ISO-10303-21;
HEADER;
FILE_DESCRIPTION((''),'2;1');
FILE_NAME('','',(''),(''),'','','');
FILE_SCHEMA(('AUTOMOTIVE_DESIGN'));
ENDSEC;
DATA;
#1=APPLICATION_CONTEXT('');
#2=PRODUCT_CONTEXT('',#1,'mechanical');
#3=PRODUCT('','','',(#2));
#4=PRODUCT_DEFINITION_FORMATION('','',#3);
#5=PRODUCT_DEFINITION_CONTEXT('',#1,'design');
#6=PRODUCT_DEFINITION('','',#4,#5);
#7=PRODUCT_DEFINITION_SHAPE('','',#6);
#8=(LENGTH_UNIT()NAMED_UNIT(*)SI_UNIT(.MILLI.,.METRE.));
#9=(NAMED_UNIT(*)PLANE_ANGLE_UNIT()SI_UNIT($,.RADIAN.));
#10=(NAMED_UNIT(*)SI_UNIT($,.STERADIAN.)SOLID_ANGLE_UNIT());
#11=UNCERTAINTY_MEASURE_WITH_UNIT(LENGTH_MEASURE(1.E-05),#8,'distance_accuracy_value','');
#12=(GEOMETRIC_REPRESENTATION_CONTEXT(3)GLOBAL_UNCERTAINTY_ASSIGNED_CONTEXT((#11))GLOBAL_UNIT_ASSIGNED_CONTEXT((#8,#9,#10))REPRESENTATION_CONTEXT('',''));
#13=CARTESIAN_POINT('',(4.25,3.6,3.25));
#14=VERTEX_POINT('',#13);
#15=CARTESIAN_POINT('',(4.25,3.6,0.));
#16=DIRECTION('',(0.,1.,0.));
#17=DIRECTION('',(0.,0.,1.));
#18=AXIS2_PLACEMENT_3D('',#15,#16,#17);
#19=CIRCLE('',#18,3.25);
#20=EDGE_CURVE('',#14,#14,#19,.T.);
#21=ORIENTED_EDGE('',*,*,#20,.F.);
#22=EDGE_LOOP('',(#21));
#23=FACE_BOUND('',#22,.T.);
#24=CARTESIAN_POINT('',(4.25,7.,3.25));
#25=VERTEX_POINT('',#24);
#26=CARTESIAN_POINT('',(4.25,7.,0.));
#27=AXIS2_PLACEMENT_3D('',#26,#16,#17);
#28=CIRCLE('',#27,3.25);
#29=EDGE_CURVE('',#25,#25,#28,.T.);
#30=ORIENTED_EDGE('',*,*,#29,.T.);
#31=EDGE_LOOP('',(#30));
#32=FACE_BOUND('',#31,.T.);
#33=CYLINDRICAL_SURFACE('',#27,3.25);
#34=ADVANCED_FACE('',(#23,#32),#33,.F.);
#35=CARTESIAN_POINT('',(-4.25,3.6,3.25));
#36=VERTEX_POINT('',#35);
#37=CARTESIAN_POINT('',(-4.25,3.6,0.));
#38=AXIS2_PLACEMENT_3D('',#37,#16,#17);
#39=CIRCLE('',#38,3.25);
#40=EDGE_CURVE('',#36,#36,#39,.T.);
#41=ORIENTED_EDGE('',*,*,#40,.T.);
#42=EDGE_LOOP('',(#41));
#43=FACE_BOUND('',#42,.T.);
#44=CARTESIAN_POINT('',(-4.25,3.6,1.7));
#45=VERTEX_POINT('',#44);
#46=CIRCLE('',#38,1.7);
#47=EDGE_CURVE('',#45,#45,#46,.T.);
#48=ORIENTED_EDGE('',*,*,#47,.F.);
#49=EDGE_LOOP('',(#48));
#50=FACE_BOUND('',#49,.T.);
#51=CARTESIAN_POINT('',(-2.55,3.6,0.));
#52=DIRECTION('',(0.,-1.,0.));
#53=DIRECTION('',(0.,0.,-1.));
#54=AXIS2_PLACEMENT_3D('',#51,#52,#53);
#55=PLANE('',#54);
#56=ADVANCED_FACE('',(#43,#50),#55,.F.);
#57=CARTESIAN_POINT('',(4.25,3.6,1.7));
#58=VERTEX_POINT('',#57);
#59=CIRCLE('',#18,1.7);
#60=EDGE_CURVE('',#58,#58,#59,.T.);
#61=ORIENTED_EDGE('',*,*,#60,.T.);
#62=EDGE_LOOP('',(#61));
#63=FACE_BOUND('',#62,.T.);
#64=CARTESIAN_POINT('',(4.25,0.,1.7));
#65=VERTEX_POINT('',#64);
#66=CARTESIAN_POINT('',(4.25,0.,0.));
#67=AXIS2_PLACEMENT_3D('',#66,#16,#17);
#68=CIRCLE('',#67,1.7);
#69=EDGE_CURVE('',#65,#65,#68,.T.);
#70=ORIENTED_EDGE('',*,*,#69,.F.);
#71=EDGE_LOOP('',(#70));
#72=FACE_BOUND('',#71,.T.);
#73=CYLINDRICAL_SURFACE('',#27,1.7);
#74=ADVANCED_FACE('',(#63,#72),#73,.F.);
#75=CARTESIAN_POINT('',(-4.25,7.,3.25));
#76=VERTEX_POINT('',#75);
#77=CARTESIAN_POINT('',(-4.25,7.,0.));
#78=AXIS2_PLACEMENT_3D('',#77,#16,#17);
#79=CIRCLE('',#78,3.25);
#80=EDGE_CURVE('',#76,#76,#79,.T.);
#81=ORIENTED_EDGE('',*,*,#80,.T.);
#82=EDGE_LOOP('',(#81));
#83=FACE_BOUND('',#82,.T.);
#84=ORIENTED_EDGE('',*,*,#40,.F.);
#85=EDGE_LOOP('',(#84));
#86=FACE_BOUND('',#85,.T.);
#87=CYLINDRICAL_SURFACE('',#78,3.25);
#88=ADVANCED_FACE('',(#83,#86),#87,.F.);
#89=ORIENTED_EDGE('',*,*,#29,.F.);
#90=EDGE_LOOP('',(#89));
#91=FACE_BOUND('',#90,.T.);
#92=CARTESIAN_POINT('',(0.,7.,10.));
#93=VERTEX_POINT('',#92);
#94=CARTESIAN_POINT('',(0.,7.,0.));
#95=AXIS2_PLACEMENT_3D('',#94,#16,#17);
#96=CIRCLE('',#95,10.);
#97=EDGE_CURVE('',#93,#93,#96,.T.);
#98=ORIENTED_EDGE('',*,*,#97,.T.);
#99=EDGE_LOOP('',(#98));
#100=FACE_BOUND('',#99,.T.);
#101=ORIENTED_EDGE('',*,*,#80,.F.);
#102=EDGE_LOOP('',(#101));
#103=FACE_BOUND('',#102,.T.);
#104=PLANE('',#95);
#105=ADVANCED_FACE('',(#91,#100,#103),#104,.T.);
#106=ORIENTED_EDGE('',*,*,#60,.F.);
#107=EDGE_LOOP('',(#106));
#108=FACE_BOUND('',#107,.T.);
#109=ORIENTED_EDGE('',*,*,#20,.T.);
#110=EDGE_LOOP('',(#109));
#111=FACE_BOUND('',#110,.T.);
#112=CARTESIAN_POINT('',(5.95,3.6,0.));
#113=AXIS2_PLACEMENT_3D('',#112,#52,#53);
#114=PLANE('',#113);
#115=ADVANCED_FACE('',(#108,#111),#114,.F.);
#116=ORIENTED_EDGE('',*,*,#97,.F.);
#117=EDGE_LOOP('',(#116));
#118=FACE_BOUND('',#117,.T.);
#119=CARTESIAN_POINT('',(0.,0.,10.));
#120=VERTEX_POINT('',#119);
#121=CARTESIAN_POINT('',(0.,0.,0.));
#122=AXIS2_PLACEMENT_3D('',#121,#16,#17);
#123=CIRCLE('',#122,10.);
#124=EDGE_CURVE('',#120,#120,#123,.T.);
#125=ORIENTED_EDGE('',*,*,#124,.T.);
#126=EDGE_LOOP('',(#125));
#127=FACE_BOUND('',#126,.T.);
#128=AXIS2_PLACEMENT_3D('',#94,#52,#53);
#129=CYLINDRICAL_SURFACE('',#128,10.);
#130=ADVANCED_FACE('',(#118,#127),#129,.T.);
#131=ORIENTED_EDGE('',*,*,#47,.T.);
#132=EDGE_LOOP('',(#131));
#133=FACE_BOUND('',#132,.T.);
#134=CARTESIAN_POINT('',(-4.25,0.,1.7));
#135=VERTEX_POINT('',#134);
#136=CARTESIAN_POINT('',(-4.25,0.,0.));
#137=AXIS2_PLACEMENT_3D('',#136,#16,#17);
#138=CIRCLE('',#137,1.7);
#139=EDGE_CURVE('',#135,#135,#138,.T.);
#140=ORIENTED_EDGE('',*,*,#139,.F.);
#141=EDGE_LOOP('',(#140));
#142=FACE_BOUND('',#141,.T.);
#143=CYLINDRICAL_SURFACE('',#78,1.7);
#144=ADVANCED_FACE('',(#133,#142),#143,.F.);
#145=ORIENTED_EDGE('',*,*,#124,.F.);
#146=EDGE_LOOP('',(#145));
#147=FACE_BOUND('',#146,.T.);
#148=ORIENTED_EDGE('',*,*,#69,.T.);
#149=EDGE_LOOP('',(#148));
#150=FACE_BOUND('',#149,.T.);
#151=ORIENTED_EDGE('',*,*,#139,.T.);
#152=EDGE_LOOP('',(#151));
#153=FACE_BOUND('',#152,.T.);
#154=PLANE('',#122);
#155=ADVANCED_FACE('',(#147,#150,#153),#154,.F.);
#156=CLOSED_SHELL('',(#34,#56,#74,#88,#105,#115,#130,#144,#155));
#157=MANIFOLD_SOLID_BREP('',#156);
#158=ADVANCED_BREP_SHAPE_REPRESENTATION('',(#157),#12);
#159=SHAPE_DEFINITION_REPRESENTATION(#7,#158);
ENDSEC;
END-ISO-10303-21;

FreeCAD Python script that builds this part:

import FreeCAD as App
import Part
import Sketcher
from FreeCAD import Vector

doc = App.newDocument("Part")
body = doc.addObject("PartDesign::Body", "Body")

# Sketch on XZ plane
sketch1 = body.newObject("Sketcher::SketchObject", "Sketch")
sketch1.AttachmentSupport = (doc.getObject("XZ_Plane"), [""])
sketch1.MapMode = "FlatFace"
sketch1.addGeometry(Part.Circle(Vector(0, 0, 0), Vector(0, 0, 1), 10), False)
sketch1.addConstraint([
    Sketcher.Constraint("Coincident", 0, 3, -1, 1),
    Sketcher.Constraint("Diameter", 0, 20.0),
])
pad1 = body.newObject("PartDesign::Pad", "Pad")
pad1.Profile = sketch1
pad1.Length = 7
pad1.Reversed = True

# Sketch on XZ plane
sketch2 = body.newObject("Sketcher::SketchObject", "Sketch001")
sketch2.AttachmentSupport = (doc.getObject("XZ_Plane"), [""])
sketch2.MapMode = "FlatFace"
sketch2.AttachmentOffset = App.Placement(Vector(0, 0, -7), App.Rotation())
sketch2.addGeometry([
    Part.Circle(Vector(4.2, 0, 0), Vector(0, 0, 1), 1.7),
    Part.Circle(Vector(-4.2, 0, 0), Vector(0, 0, 1), 1.7),
], False)
sketch2.addConstraint([
    Sketcher.Constraint("Equal", 0, 1),
    Sketcher.Constraint("Symmetric", 0, 3, 1, 3, -1, 1),
    Sketcher.Constraint("PointOnObject", 0, 3, -1),
    Sketcher.Constraint("Diameter", 0, 3.4),
    Sketcher.Constraint("DistanceX", 1, 3, 0, 3, 8.5),
])
doc.recompute()
hole = body.newObject("PartDesign::Hole", "Hole")
hole.Profile = sketch2
hole.ThreadType = "None"
hole.Diameter = 3.4
hole.DepthType = "ThroughAll"
hole.HoleCutType = "Counterbore"
hole.HoleCutDiameter = 6.5
hole.HoleCutDepth = 3.4
hole.Reversed = True

doc.recompute()
